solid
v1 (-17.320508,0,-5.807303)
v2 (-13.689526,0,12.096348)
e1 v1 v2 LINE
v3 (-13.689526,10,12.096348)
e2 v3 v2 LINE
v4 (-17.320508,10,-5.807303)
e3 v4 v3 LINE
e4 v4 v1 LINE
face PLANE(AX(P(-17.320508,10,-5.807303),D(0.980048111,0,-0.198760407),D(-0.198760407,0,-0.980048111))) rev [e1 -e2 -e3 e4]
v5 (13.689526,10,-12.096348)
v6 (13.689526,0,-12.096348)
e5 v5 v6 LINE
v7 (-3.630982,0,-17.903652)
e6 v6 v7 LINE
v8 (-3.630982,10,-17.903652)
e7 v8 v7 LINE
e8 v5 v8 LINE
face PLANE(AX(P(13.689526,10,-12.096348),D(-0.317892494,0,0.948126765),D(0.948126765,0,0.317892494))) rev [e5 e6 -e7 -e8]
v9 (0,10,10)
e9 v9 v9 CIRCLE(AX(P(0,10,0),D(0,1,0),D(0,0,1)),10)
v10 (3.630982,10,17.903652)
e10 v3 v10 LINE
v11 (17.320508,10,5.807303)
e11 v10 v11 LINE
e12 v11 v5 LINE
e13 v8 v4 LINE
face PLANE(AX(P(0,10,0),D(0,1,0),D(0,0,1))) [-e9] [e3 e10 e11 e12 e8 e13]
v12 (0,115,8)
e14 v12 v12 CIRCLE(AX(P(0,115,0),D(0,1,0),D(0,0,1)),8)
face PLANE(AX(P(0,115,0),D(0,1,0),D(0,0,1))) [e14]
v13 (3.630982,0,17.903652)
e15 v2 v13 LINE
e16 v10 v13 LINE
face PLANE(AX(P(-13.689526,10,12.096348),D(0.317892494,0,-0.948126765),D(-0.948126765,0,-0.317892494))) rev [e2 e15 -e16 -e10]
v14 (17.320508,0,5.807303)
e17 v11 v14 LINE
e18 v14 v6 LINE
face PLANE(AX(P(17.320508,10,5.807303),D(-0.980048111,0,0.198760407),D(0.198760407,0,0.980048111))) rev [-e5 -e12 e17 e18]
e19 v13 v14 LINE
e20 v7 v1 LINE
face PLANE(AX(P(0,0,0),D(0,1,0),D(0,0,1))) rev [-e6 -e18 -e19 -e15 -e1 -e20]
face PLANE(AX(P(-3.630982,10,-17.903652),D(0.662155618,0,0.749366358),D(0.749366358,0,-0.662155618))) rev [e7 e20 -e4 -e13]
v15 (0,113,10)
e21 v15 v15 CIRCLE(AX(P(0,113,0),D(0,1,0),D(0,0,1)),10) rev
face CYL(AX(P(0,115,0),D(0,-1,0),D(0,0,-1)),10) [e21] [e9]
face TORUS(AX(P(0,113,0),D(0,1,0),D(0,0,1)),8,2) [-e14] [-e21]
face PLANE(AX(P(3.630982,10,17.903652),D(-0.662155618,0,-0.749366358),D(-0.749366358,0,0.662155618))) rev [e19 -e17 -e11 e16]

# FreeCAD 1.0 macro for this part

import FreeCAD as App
import Part
import Sketcher

V = App.Vector
Q = App.Units.Quantity


def edges_at(feature, points):
    """Names of the edges that pass closest to the given points."""
    edges = feature.Shape.Edges
    near = lambda p: min(range(len(edges)), key=lambda i: edges[i].distToShape(Part.Vertex(*p))[0])
    return sorted({f"Edge{near(p) + 1}" for p in points})


def add_polygon(sketch, points):
    """Adds a closed chain of lines whose ends are joined by coincident constraints."""
    first, n = sketch.GeometryCount, len(points)
    for a, b in zip(points, points[1:] + points[:1]):
        sketch.addGeometry(Part.LineSegment(App.Vector(*a, 0), App.Vector(*b, 0)), False)
    for i in range(n):
        sketch.addConstraint(Sketcher.Constraint("Coincident", first + i, 2, first + (i + 1) % n, 1))

doc = App.newDocument("Part")
params = doc.addObject("Spreadsheet::Sheet", "Params")
for row, (alias, value) in enumerate([
    ("pad1_length", "10 mm"),
    ("sketch2_diameter", "20 mm"),
    ("pad2_length", "105 mm"),
    ("fillet_radius", "2 mm"),
], start=1):
    params.set(f"A{row}", alias)
    params.set(f"B{row}", "=" + value)
    params.setAlias(f"B{row}", alias)

body = doc.addObject("PartDesign::Body", "Body")

# Sketch on XZ plane
sketch1 = body.newObject("Sketcher::SketchObject", "Sketch")
sketch1.AttachmentSupport = (doc.getObject("XZ_Plane"), [""])
sketch1.MapMode = "FlatFace"
add_polygon(sketch1, [(-14, 12), (4, 18), (17, 6), (14, -12), (-4, -18), (-17, -6)])  # lines 0-5
sketch1.addConstraint(Sketcher.Constraint("Symmetric", 0, 2, 3, 2, -1, 1))
sketch1.addConstraint(Sketcher.Constraint("Symmetric", 1, 2, 4, 2, -1, 1))
sketch1.addConstraint(Sketcher.Constraint("Symmetric", 2, 2, 5, 2, -1, 1))
sketch1.addConstraint(Sketcher.Constraint("Equal", 0, 1))
sketch1.addConstraint(Sketcher.Constraint("Equal", 1, 2))
sketch1.addConstraint(Sketcher.Constraint("DistanceY", 2, 2, 0, 2, Q("30 mm")))
sketch1.addConstraint(Sketcher.Constraint("DistanceY", -1, 1, 0, 2, Q("17.903652 mm")))
sketch1.addConstraint(Sketcher.Constraint("DistanceX", -1, 1, 1, 2, Q("17.320508 mm")))
sketch1.addConstraint(Sketcher.Constraint("DistanceY", 1, 2, 0, 2, Q("12.096348 mm")))
pad1 = body.newObject("PartDesign::Pad", "Pad")
pad1.Profile = sketch1
pad1.setExpression("Length", "Params.pad1_length")
pad1.Reversed = True

# Sketch on XZ plane
sketch2 = body.newObject("Sketcher::SketchObject", "Sketch001")
sketch2.AttachmentSupport = (doc.getObject("XZ_Plane"), [""])
sketch2.MapMode = "FlatFace"
sketch2.AttachmentOffset = App.Placement(V(0, 0, -10), App.Rotation())
sketch2.addGeometry(Part.Circle(V(0, 0, 0), V(0, 0, 1), 10), False)
sketch2.addConstraint(Sketcher.Constraint("Coincident", 0, 3, -1, 1))
sketch2.addConstraint(Sketcher.Constraint("Diameter", 0, Q("20 mm")))
sketch2.setExpression("Constraints[1]", "Params.sketch2_diameter")
pad2 = body.newObject("PartDesign::Pad", "Pad001")
pad2.Profile = sketch2
pad2.setExpression("Length", "Params.pad2_length")
pad2.Reversed = True
doc.recompute()

fillet = body.newObject("PartDesign::Fillet", "Fillet")
fillet.Base = (pad2, edges_at(pad2, [(-10, 115, 0)]))
fillet.setExpression("Radius", "Params.fillet_radius")

doc.recompute()
